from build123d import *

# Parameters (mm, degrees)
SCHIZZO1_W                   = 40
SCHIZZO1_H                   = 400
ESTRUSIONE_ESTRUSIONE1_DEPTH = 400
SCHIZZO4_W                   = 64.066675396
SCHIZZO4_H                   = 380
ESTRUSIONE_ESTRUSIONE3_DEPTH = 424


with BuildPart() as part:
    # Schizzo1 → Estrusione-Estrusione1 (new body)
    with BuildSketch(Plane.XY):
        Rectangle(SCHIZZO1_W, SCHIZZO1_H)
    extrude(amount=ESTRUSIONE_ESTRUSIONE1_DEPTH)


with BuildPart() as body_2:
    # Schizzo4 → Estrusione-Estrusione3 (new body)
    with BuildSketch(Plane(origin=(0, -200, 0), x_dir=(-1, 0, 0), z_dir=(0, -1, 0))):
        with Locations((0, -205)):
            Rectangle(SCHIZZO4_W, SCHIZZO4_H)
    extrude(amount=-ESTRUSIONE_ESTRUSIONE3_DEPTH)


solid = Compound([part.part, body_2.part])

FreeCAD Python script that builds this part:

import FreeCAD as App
import Part
import Sketcher
from FreeCAD import Vector

doc = App.newDocument("Part")
params = doc.addObject("Spreadsheet::Sheet", "Params")
for row, (alias, value) in enumerate([
    ("sketch1_width", "40 mm"),
    ("sketch1_height", "400 mm"),
    ("pad1_length", "400 mm"),
    ("sketch2_height", "380 mm"),
    ("pad2_length", "424 mm"),
], start=1):
    params.set(f"A{row}", alias)
    params.set(f"B{row}", "=" + value)
    params.setAlias(f"B{row}", alias)

body = doc.addObject("PartDesign::Body", "Body")

# Sketch on XY plane
sketch1 = body.newObject("Sketcher::SketchObject", "Sketch")
sketch1.AttachmentSupport = (doc.getObject("XY_Plane"), [""])
sketch1.MapMode = "FlatFace"
sketch1.addGeometry(Part.LineSegment(Vector(-20, 200, 0), Vector(-20, -200, 0)), False)
sketch1.addGeometry(Part.LineSegment(Vector(-20, -200, 0), Vector(20, -200, 0)), False)
sketch1.addGeometry(Part.LineSegment(Vector(20, -200, 0), Vector(20, 200, 0)), False)
sketch1.addGeometry(Part.LineSegment(Vector(20, 200, 0), Vector(-20, 200, 0)), False)
sketch1.addConstraint(Sketcher.Constraint("Coincident", 0, 2, 1, 1))
sketch1.addConstraint(Sketcher.Constraint("Coincident", 1, 2, 2, 1))
sketch1.addConstraint(Sketcher.Constraint("Coincident", 2, 2, 3, 1))
sketch1.addConstraint(Sketcher.Constraint("Coincident", 3, 2, 0, 1))
sketch1.addConstraint(Sketcher.Constraint("Vertical", 0))
sketch1.addConstraint(Sketcher.Constraint("Horizontal", 1))
sketch1.addConstraint(Sketcher.Constraint("Vertical", 2))
sketch1.addConstraint(Sketcher.Constraint("Horizontal", 3))
sketch1.addConstraint(Sketcher.Constraint("Symmetric", 0, 2, 2, 2, -1, 1))
sketch1.addConstraint(Sketcher.Constraint("DistanceX", 1, 1, 1, 2, 40.0))
sketch1.addConstraint(Sketcher.Constraint("DistanceY", 0, 2, 0, 1, 400.0))
sketch1.setExpression("Constraints[9]", "Params.sketch1_width")
sketch1.setExpression("Constraints[10]", "Params.sketch1_height")
pad1 = body.newObject("PartDesign::Pad", "Pad")
pad1.Profile = sketch1
pad1.setExpression("Length", "Params.pad1_length")
body2 = doc.addObject("PartDesign::Body", "Body001")

# Sketch on XZ plane
sketch2 = body2.newObject("Sketcher::SketchObject", "Sketch001")
sketch2.AttachmentSupport = (doc.getObject("XZ_Plane001"), [""])
sketch2.MapMode = "FlatFace"
sketch2.AttachmentOffset = App.Placement(Vector(0, 0, 200), App.Rotation())
sketch2.addGeometry(Part.LineSegment(Vector(32, 15, 0), Vector(32, 395, 0)), False)
sketch2.addGeometry(Part.LineSegment(Vector(32, 395, 0), Vector(-32, 395, 0)), False)
sketch2.addGeometry(Part.LineSegment(Vector(-32, 395, 0), Vector(-32, 15, 0)), False)
sketch2.addGeometry(Part.LineSegment(Vector(-32, 15, 0), Vector(32, 15, 0)), False)
sketch2.addConstraint(Sketcher.Constraint("Coincident", 0, 2, 1, 1))
sketch2.addConstraint(Sketcher.Constraint("Coincident", 1, 2, 2, 1))
sketch2.addConstraint(Sketcher.Constraint("Coincident", 2, 2, 3, 1))
sketch2.addConstraint(Sketcher.Constraint("Coincident", 3, 2, 0, 1))
sketch2.addConstraint(Sketcher.Constraint("Vertical", 0))
sketch2.addConstraint(Sketcher.Constraint("Horizontal", 1))
sketch2.addConstraint(Sketcher.Constraint("Vertical", 2))
sketch2.addConstraint(Sketcher.Constraint("Horizontal", 3))
sketch2.addConstraint(Sketcher.Constraint("DistanceY", 0, 1, 0, 2, 380.0))
sketch2.addConstraint(Sketcher.Constraint("DistanceY", -1, 1, 0, 2, 395.0))
sketch2.addConstraint(Sketcher.Constraint("DistanceX", 1, 2, 1, 1, 64.066675))
sketch2.addConstraint(Sketcher.Constraint("DistanceX", -1, 1, 0, 2, 32.033338))
sketch2.setExpression("Constraints[8]", "Params.sketch2_height")
pad2 = body2.newObject("PartDesign::Pad", "Pad001")
pad2.Profile = sketch2
pad2.setExpression("Length", "Params.pad2_length")
pad2.Reversed = True

doc.recompute()
